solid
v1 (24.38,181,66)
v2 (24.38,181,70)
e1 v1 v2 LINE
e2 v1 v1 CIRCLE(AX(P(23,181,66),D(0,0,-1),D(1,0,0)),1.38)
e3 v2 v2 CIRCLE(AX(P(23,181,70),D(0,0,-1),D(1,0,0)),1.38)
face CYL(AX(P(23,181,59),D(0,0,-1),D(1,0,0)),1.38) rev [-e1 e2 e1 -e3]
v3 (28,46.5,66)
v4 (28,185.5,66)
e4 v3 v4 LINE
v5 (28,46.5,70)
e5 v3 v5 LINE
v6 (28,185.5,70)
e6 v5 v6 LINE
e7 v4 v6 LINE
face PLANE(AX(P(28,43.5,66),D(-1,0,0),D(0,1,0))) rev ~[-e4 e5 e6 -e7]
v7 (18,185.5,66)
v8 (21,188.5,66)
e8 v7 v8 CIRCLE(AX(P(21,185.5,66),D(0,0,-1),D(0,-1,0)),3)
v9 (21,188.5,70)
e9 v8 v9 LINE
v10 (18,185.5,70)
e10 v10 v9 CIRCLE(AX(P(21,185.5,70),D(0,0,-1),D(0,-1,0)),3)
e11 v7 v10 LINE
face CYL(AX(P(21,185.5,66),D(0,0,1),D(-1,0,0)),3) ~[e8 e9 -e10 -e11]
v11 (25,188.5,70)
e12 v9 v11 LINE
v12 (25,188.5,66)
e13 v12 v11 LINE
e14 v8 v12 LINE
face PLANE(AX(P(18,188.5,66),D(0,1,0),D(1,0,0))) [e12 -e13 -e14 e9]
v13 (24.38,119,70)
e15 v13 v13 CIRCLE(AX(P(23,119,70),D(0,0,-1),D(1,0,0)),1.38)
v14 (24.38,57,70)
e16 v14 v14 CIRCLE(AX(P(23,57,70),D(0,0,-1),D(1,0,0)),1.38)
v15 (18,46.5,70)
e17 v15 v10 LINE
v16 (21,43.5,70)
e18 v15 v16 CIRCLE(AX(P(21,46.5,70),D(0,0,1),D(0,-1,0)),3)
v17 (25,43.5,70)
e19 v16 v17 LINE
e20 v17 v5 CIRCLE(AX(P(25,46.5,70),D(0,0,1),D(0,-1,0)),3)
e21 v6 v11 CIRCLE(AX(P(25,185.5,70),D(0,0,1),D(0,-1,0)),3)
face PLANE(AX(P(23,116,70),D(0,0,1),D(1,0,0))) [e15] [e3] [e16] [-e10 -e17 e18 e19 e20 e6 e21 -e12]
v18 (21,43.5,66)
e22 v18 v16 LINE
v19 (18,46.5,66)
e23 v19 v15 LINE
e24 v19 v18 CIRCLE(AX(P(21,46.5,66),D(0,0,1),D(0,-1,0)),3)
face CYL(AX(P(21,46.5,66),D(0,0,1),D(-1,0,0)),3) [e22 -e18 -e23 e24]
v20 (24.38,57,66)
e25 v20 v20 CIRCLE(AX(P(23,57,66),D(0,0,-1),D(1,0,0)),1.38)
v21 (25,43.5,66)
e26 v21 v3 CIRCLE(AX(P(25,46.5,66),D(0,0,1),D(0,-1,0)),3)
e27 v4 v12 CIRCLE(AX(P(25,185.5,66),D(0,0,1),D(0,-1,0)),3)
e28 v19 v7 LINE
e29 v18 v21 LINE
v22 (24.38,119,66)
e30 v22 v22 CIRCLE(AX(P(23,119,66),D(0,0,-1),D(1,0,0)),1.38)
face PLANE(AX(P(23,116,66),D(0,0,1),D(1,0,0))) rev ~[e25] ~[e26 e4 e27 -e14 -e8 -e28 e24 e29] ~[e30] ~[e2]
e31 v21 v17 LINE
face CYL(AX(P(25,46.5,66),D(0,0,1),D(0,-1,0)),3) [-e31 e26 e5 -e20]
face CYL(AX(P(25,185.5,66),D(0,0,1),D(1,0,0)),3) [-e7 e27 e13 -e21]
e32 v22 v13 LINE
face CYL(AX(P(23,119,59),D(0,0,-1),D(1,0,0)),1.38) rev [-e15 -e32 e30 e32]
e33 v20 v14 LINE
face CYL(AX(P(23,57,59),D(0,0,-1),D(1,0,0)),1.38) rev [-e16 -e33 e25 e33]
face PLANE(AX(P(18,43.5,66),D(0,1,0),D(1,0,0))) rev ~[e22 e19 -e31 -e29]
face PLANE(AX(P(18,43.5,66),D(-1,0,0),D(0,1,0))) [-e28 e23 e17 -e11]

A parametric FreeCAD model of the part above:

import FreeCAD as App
import Part
import Sketcher
from FreeCAD import Vector
Q = App.Units.Quantity


def edges_at(feature, points):
    """Names of the edges that pass closest to the given points."""
    edges = feature.Shape.Edges
    near = lambda p: min(range(len(edges)), key=lambda i: edges[i].distToShape(Part.Vertex(*p))[0])
    return sorted({f"Edge{near(p) + 1}" for p in points})


def add_polygon(sketch, points):
    """Adds a closed chain of lines whose ends are joined by coincident constraints."""
    first, n = sketch.GeometryCount, len(points)
    for a, b in zip(points, points[1:] + points[:1]):
        sketch.addGeometry(Part.LineSegment(App.Vector(*a, 0), App.Vector(*b, 0)), False)
    for i in range(n):
        sketch.addConstraint(Sketcher.Constraint("Coincident", first + i, 2, first + (i + 1) % n, 1))

doc = App.newDocument("Part")
params = doc.addObject("Spreadsheet::Sheet", "Params")
for row, (alias, value) in enumerate([
    ("sketch1_diameter", "2.76 mm"),
    ("pad1_length", "13 mm"),
    ("sketch2_diameter", "2.76 mm"),
    ("pad2_length", "13 mm"),
    ("sketch3_diameter", "2.76 mm"),
    ("pad3_length", "13 mm"),
    ("sketch4_width", "10 mm"),
    ("sketch4_height", "145 mm"),
    ("pad4_length", "4 mm"),
    ("fillet_radius", "3 mm"),
], start=1):
    params.set(f"A{row}", alias)
    params.set(f"B{row}", "=" + value)
    params.setAlias(f"B{row}", alias)

body = doc.addObject("PartDesign::Body", "Body")

sketch1 = body.newObject("Sketcher::SketchObject", "Sketch")
sketch1.AttachmentSupport = (doc.getObject("XY_Plane"), [""])
sketch1.MapMode = "FlatFace"
sketch1.AttachmentOffset = App.Placement(Vector(0, 0, 59), App.Rotation())
sketch1.addGeometry(Part.Circle(Vector(25, 188.5, 0), Vector(0, 0, 1), 1.4), False)
sketch1.addConstraint([
    Sketcher.Constraint("Diameter", 0, Q("2.76 mm")),
    Sketcher.Constraint("DistanceX", -1, 1, 0, 3, Q("25 mm")),
    Sketcher.Constraint("DistanceY", -1, 1, 0, 3, Q("188.5 mm")),
])
sketch1.setExpression("Constraints[0]", "Params.sketch1_diameter")
pad1 = body.newObject("PartDesign::Pad", "Pad")
pad1.Profile = sketch1
pad1.setExpression("Length", "Params.pad1_length")
body2 = doc.addObject("PartDesign::Body", "Body001")

sketch2 = body2.newObject("Sketcher::SketchObject", "Sketch001")
sketch2.AttachmentSupport = (doc.getObject("XY_Plane001"), [""])
sketch2.MapMode = "FlatFace"
sketch2.AttachmentOffset = App.Placement(Vector(0, 0, 59), App.Rotation())
sketch2.addGeometry(Part.Circle(Vector(25, 126.5, 0), Vector(0, 0, 1), 1.4), False)
sketch2.addConstraint([
    Sketcher.Constraint("Diameter", 0, Q("2.76 mm")),
    Sketcher.Constraint("DistanceX", -1, 1, 0, 3, Q("25 mm")),
    Sketcher.Constraint("DistanceY", -1, 1, 0, 3, Q("126.5 mm")),
])
sketch2.setExpression("Constraints[0]", "Params.sketch2_diameter")
pad2 = body2.newObject("PartDesign::Pad", "Pad001")
pad2.Profile = sketch2
pad2.setExpression("Length", "Params.pad2_length")
body3 = doc.addObject("PartDesign::Body", "Body002")

sketch3 = body3.newObject("Sketcher::SketchObject", "Sketch002")
sketch3.AttachmentSupport = (doc.getObject("XY_Plane002"), [""])
sketch3.MapMode = "FlatFace"
sketch3.AttachmentOffset = App.Placement(Vector(0, 0, 59), App.Rotation())
sketch3.addGeometry(Part.Circle(Vector(25, 64.5, 0), Vector(0, 0, 1), 1.4), False)
sketch3.addConstraint([
    Sketcher.Constraint("Diameter", 0, Q("2.76 mm")),
    Sketcher.Constraint("DistanceX", -1, 1, 0, 3, Q("25 mm")),
    Sketcher.Constraint("DistanceY", -1, 1, 0, 3, Q("64.5 mm")),
])
sketch3.setExpression("Constraints[0]", "Params.sketch3_diameter")
pad3 = body3.newObject("PartDesign::Pad", "Pad002")
pad3.Profile = sketch3
pad3.setExpression("Length", "Params.pad3_length")
body4 = doc.addObject("PartDesign::Body", "Body003")

sketch4 = body4.newObject("Sketcher::SketchObject", "Sketch003")
sketch4.AttachmentSupport = (doc.getObject("XY_Plane003"), [""])
sketch4.MapMode = "FlatFace"
sketch4.AttachmentOffset = App.Placement(Vector(0, 0, 66), App.Rotation())
add_polygon(sketch4, [(20, 196), (20, 51), (30, 51), (30, 196)])
sketch4.addConstraint([
    Sketcher.Constraint("Vertical", 0),
    Sketcher.Constraint("Horizontal", 1),
    Sketcher.Constraint("Vertical", 2),
    Sketcher.Constraint("Horizontal", 3),
    Sketcher.Constraint("DistanceX", 1, 1, 1, 2, Q("10 mm")),
    Sketcher.Constraint("DistanceY", 0, 2, 0, 1, Q("145 mm")),
    Sketcher.Constraint("DistanceX", -1, 1, 0, 2, Q("20 mm")),
    Sketcher.Constraint("DistanceY", -1, 1, 0, 2, Q("51 mm")),
])
sketch4.setExpression("Constraints[8]", "Params.sketch4_width")
sketch4.setExpression("Constraints[9]", "Params.sketch4_height")
pad4 = body4.newObject("PartDesign::Pad", "Pad003")
pad4.Profile = sketch4
pad4.setExpression("Length", "Params.pad4_length")
doc.recompute()

fillet = body4.newObject("PartDesign::Fillet", "Fillet")
fillet.Base = (pad4, edges_at(pad4, [
    (20, 51, 68),
    (20, 196, 68),
    (30, 51, 68),
    (30, 196, 68),
]))
fillet.setExpression("Radius", "Params.fillet_radius")
doc.recompute()

boolean = body4.newObject("PartDesign::Boolean", "Boolean")
boolean.Type = "Cut"
boolean.addObjects([body3])
doc.recompute()

boolean2 = body4.newObject("PartDesign::Boolean", "Boolean001")
boolean2.Type = "Cut"
boolean2.addObjects([body2])
doc.recompute()

boolean3 = body4.newObject("PartDesign::Boolean", "Boolean002")
boolean3.Type = "Cut"
boolean3.addObjects([body])
body5 = doc.addObject("PartDesign::Body", "Body004")
doc.recompute()

body4.Placement = App.Placement(Vector(-2, -7.5, 0), App.Rotation(Vector(0, 0, 1), 0))
boolean4 = body5.newObject("PartDesign::Boolean", "Boolean003")
boolean4.Type = "Fuse"
boolean4.addObjects([body4])

doc.recompute()
